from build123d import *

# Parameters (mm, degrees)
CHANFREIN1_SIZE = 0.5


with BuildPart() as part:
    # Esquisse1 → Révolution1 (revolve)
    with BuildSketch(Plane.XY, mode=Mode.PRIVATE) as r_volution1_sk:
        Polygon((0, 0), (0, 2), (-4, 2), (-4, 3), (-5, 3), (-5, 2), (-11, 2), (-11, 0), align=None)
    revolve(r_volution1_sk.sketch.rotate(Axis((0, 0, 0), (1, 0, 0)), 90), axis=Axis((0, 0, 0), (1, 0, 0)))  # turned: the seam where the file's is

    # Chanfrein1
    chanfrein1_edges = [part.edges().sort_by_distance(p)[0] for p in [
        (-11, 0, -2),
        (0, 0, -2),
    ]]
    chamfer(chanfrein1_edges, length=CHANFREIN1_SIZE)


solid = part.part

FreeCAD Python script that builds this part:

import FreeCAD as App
import Part
import Sketcher

V = App.Vector


def edges_at(feature, points):
    """Names of the edges that pass closest to the given points."""
    edges = feature.Shape.Edges
    near = lambda p: min(range(len(edges)), key=lambda i: edges[i].distToShape(Part.Vertex(*p))[0])
    return sorted({f"Edge{near(p) + 1}" for p in points})


def add_polygon(sketch, points):
    """Adds a closed chain of lines whose ends are joined by coincident constraints."""
    first, n = sketch.GeometryCount, len(points)
    for a, b in zip(points, points[1:] + points[:1]):
        sketch.addGeometry(Part.LineSegment(App.Vector(*a, 0), App.Vector(*b, 0)), False)
    for i in range(n):
        sketch.addConstraint(Sketcher.Constraint("Coincident", first + i, 2, first + (i + 1) % n, 1))

doc = App.newDocument("Part")
params = doc.addObject("Spreadsheet::Sheet", "Params")
for row, (alias, value) in enumerate([
    ("sketch1_width", "4 mm"),
    ("sketch1_width2", "1 mm"),
    ("sketch1_width3", "6 mm"),
    ("sketch1_height", "2 mm"),
    ("revolution_angle", "360 deg"),
    ("chamfer_size", "0.5 mm"),
], start=1):
    params.set(f"A{row}", alias)
    params.set(f"B{row}", "=" + value)
    params.setAlias(f"B{row}", alias)

body = doc.addObject("PartDesign::Body", "Body")

# Sketch on XY plane
sketch1 = doc.addObject("Sketcher::SketchObject", "Sketch")
body.addObject(sketch1)
sketch1.AttachmentSupport = (doc.XY_Plane, [""])
sketch1.MapMode = "FlatFace"
add_polygon(sketch1, [(0, 0), (0, 2), (-4, 2), (-4, 3), (-5, 3), (-5, 2), (-11, 2), (-11, 0)])  # lines 0-7
sketch1.addConstraint(Sketcher.Constraint("Vertical", 0))
sketch1.addConstraint(Sketcher.Constraint("Horizontal", 1))
sketch1.addConstraint(Sketcher.Constraint("Vertical", 2))
sketch1.addConstraint(Sketcher.Constraint("Horizontal", 3))
sketch1.addConstraint(Sketcher.Constraint("Vertical", 4))
sketch1.addConstraint(Sketcher.Constraint("Horizontal", 5))
sketch1.addConstraint(Sketcher.Constraint("Vertical", 6))
sketch1.addConstraint(Sketcher.Constraint("Horizontal", 7))
sketch1.addConstraint(Sketcher.Constraint("Coincident", 7, 2, -1, 1))
sketch1.addConstraint(Sketcher.Constraint("Horizontal", 1, 2, 4, 2))
sketch1.addConstraint(Sketcher.Constraint("Equal", 3, 2))
sketch1.addConstraint(Sketcher.Constraint("DistanceX", 1, 2, 1, 1, 4.0))
sketch1.addConstraint(Sketcher.Constraint("DistanceX", 3, 2, 3, 1, 1.0))
sketch1.addConstraint(Sketcher.Constraint("DistanceX", 5, 2, 5, 1, 6.0))
sketch1.addConstraint(Sketcher.Constraint("DistanceY", 0, 1, 0, 2, 2.0))
sketch1.setExpression("Constraints[19]", "Params.sketch1_width")
sketch1.setExpression("Constraints[20]", "Params.sketch1_width2")
sketch1.setExpression("Constraints[21]", "Params.sketch1_width3")
sketch1.setExpression("Constraints[22]", "Params.sketch1_height")
revolution = doc.addObject("PartDesign::Revolution", "Revolution")
body.addObject(revolution)
revolution.Profile = sketch1
revolution.ReferenceAxis = (sketch1, ["H_Axis"])
revolution.setExpression("Angle", "Params.revolution_angle")
doc.recompute()

chamfer = doc.addObject("PartDesign::Chamfer", "Chamfer")
body.addObject(chamfer)
chamfer.Base = (revolution, edges_at(revolution, [(-11, 0, -2), (0, 0, -2)]))
chamfer.setExpression("Size", "Params.chamfer_size")

doc.recompute()
